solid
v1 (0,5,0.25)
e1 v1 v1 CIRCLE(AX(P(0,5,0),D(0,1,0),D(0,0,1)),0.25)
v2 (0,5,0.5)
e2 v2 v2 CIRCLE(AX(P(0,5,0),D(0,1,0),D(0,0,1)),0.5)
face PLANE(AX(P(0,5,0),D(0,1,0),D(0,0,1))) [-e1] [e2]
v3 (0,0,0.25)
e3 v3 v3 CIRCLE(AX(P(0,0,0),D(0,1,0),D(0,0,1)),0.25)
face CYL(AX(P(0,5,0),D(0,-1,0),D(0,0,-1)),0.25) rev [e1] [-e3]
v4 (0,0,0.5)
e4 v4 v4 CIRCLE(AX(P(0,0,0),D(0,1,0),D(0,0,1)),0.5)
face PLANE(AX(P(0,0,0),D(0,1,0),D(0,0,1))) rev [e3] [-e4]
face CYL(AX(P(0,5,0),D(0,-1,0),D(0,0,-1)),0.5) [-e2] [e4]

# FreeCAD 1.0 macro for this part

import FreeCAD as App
import Part
import Sketcher

doc = App.newDocument("Part")
body = doc.addObject("PartDesign::Body", "Body")

sketch1 = body.newObject("Sketcher::SketchObject", "Sketch")
sketch1.AttachmentSupport = (doc.getObject("XZ_Plane"), [""])
sketch1.MapMode = "FlatFace"
sketch1.addGeometry([
    Part.Circle(App.Vector(0, 0, 0), App.Vector(0, 0, 1), 0.5),
    Part.Circle(App.Vector(0, 0, 0), App.Vector(0, 0, 1), 0.25),
], False)
sketch1.addConstraint([
    Sketcher.Constraint("Coincident", 0, 3, -1, 1),
    Sketcher.Constraint("Coincident", 1, 3, -1, 1),
    Sketcher.Constraint("Diameter", 0, 1.0),
    Sketcher.Constraint("Diameter", 1, 0.5),
])
pad1 = body.newObject("PartDesign::Pad", "Pad")
pad1.Profile = sketch1
pad1.Length = 5
pad1.Reversed = True

doc.recompute()
